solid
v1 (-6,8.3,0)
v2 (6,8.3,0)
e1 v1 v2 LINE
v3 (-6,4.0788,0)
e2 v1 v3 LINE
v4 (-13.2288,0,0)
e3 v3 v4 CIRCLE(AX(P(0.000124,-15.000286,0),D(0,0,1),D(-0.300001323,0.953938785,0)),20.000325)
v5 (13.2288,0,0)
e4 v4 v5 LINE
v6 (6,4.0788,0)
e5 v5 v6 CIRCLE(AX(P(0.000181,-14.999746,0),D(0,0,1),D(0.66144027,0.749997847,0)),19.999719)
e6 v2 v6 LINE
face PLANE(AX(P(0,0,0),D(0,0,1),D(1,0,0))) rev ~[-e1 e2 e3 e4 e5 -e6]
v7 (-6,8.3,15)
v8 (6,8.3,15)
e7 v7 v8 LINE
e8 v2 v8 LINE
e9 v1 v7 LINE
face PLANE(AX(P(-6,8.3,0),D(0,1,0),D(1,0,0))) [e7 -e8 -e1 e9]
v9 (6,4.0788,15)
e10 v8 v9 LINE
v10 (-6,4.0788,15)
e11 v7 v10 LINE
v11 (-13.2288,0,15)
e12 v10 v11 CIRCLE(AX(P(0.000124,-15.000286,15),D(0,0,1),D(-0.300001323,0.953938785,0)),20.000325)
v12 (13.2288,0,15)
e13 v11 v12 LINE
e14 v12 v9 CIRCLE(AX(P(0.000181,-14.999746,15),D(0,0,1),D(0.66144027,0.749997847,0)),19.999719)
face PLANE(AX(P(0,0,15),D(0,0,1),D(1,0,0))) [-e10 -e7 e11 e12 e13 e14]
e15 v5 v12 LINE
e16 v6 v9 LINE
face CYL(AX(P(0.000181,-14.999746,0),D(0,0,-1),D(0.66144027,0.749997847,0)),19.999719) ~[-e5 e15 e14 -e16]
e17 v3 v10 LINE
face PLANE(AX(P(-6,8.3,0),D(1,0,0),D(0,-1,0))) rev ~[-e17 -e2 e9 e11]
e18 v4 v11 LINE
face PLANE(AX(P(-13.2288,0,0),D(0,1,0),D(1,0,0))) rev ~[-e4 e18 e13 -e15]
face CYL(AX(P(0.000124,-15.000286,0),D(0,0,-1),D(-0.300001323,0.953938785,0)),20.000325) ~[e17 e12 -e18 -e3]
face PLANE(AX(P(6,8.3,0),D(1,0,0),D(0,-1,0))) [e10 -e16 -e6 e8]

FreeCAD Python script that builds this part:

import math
import FreeCAD as App
import Part
import Sketcher
from FreeCAD import Vector
Q = App.Units.Quantity

doc = App.newDocument("Part")
body = doc.addObject("PartDesign::Body", "Body")

# Sketch on XY plane
sketch1 = body.newObject("Sketcher::SketchObject", "Sketch")
sketch1.AttachmentSupport = (doc.getObject("XY_Plane"), [""])
sketch1.MapMode = "FlatFace"
sketch1.addGeometry(Part.LineSegment(Vector(6, 8.3, 0), Vector(-6, 8.3, 0)), False)
sketch1.addGeometry(Part.LineSegment(Vector(-6, 8.3, 0), Vector(-6, 4.1, 0)), False)
sketch1.addGeometry(Part.ArcOfCircle(Part.Circle(Vector(0, -15, 0), Vector(0, 0, 1), 20), math.radians(107), math.radians(131)), False)
sketch1.addGeometry(Part.LineSegment(Vector(-13.2, 0, 0), Vector(13.2, 0, 0)), False)
sketch1.addGeometry(Part.ArcOfCircle(Part.Circle(Vector(0, -15, 0), Vector(0, 0, 1), 20), math.radians(49), math.radians(73)), False)
sketch1.addGeometry(Part.LineSegment(Vector(6, 4.1, 0), Vector(6, 8.3, 0)), False)
sketch1.addConstraint(Sketcher.Constraint("Coincident", 0, 2, 1, 1))
sketch1.addConstraint(Sketcher.Constraint("Coincident", 1, 2, 2, 1))
sketch1.addConstraint(Sketcher.Constraint("Coincident", 2, 2, 3, 1))
sketch1.addConstraint(Sketcher.Constraint("Coincident", 3, 2, 4, 1))
sketch1.addConstraint(Sketcher.Constraint("Coincident", 4, 2, 5, 1))
sketch1.addConstraint(Sketcher.Constraint("Coincident", 5, 2, 0, 1))
sketch1.addConstraint(Sketcher.Constraint("Horizontal", 0))
sketch1.addConstraint(Sketcher.Constraint("Vertical", 1))
sketch1.addConstraint(Sketcher.Constraint("Horizontal", 3))
sketch1.addConstraint(Sketcher.Constraint("Vertical", 5))
sketch1.addConstraint(Sketcher.Constraint("Coincident", 4, 3, 2, 3))
sketch1.addConstraint(Sketcher.Constraint("Equal", 2, 4))
sketch1.addConstraint(Sketcher.Constraint("Symmetric", 2, 2, 3, 2, -1, 1))
sketch1.addConstraint(Sketcher.Constraint("Horizontal", 1, 2, 4, 2))
sketch1.addConstraint(Sketcher.Constraint("Radius", 2, Q("20 mm")))
sketch1.addConstraint(Sketcher.Constraint("DistanceX", 0, 2, 0, 1, Q("12 mm")))
sketch1.addConstraint(Sketcher.Constraint("DistanceY", 2, 3, -1, 1, Q("15 mm")))
sketch1.addConstraint(Sketcher.Constraint("DistanceY", -1, 1, 0, 2, Q("8.3 mm")))
pad1 = body.newObject("PartDesign::Pad", "Pad")
pad1.Profile = sketch1
pad1.Length = 15

doc.recompute()
